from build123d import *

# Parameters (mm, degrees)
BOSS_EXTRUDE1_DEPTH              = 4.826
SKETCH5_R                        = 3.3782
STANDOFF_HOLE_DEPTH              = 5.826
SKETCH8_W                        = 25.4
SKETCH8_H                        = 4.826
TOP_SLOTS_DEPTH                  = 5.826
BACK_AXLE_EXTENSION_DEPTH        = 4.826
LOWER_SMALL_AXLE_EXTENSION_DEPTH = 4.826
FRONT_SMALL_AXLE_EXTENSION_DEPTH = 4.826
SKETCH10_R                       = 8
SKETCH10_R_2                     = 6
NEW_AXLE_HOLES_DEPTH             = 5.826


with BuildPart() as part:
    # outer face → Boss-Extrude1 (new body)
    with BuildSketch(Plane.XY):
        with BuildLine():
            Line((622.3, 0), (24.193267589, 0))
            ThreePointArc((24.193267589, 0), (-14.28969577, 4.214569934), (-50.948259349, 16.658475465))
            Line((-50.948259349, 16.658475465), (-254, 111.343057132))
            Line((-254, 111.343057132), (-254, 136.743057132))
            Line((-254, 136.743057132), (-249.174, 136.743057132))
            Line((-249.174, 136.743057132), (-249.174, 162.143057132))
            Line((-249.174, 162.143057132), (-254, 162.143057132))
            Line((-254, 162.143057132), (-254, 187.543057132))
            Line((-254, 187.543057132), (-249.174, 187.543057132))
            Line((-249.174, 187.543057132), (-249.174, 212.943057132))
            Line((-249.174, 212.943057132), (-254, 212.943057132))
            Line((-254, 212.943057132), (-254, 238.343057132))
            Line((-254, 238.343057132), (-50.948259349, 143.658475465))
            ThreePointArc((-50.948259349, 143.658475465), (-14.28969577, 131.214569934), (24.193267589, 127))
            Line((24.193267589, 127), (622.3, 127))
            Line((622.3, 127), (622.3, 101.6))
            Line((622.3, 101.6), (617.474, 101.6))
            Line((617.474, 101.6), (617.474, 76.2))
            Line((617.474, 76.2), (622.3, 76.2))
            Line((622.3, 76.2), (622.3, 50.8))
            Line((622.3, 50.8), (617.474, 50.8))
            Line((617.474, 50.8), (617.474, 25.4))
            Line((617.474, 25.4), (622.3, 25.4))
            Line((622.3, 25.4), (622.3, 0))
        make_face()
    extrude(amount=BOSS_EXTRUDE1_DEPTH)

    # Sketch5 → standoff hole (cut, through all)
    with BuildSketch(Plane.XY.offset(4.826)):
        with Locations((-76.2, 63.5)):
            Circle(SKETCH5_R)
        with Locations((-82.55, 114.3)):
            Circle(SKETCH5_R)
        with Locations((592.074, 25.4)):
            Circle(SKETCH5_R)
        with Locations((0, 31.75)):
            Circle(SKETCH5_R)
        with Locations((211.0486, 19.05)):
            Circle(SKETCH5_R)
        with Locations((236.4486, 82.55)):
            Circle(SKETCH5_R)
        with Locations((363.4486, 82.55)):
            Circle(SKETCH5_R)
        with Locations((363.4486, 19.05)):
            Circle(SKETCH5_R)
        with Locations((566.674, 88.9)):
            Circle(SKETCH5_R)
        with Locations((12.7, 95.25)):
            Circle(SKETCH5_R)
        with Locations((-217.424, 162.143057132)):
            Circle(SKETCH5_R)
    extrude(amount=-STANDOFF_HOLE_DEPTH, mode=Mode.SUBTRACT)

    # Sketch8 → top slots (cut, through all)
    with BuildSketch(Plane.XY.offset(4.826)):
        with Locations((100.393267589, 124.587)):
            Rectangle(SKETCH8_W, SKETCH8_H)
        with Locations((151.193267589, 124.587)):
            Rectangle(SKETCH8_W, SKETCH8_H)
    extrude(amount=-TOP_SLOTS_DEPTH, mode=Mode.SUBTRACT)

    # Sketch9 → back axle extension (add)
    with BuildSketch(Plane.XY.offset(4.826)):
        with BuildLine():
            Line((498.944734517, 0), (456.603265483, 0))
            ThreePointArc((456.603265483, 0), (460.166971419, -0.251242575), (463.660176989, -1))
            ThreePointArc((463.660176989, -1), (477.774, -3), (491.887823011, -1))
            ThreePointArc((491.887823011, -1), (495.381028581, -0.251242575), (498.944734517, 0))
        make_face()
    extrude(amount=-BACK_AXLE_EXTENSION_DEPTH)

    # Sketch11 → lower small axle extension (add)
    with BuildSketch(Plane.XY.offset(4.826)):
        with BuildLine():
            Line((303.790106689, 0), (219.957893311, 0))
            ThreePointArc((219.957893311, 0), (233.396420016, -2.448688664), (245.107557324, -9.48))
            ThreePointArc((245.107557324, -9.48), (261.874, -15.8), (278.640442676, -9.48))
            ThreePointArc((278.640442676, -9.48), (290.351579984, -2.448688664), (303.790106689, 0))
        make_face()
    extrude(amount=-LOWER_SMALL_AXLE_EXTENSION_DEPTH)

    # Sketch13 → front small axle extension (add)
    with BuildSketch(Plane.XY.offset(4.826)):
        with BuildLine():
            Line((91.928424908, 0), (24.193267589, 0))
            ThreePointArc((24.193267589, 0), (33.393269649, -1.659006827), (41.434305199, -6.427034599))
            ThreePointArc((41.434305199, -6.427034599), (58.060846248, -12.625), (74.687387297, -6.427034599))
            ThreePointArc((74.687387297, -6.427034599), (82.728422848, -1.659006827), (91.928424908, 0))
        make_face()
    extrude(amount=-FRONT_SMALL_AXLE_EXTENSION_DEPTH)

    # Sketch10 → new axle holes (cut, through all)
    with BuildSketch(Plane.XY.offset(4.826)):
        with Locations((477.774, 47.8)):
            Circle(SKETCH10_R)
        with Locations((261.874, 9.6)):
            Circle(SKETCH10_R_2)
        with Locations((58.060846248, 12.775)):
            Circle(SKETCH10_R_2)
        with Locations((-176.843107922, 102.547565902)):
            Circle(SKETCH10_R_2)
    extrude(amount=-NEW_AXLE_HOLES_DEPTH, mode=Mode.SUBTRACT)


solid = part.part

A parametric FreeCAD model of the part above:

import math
import FreeCAD as App
import Part
import Sketcher
from FreeCAD import Vector
Q = App.Units.Quantity

doc = App.newDocument("Part")
body = doc.addObject("PartDesign::Body", "Body")

sketch1 = body.newObject("Sketcher::SketchObject", "Sketch")
sketch1.AttachmentSupport = (doc.getObject("XY_Plane"), [""])
sketch1.MapMode = "FlatFace"
sketch1.addGeometry(Part.LineSegment(Vector(24.2, 0, 0), Vector(622.3, 0, 0)), False)
sketch1.addGeometry(Part.LineSegment(Vector(622.3, 0, 0), Vector(622.3, 25.4, 0)), False)
sketch1.addGeometry(Part.LineSegment(Vector(622.3, 25.4, 0), Vector(617.5, 25.4, 0)), False)
sketch1.addGeometry(Part.LineSegment(Vector(617.5, 25.4, 0), Vector(617.5, 50.8, 0)), False)
sketch1.addGeometry(Part.LineSegment(Vector(617.5, 50.8, 0), Vector(622.3, 50.8, 0)), False)
sketch1.addGeometry(Part.LineSegment(Vector(622.3, 50.8, 0), Vector(622.3, 76.2, 0)), False)
sketch1.addGeometry(Part.LineSegment(Vector(622.3, 76.2, 0), Vector(617.5, 76.2, 0)), False)
sketch1.addGeometry(Part.LineSegment(Vector(617.5, 76.2, 0), Vector(617.5, 101.6, 0)), False)
sketch1.addGeometry(Part.LineSegment(Vector(617.5, 101.6, 0), Vector(622.3, 101.6, 0)), False)
sketch1.addGeometry(Part.LineSegment(Vector(622.3, 101.6, 0), Vector(622.3, 127, 0)), False)
sketch1.addGeometry(Part.LineSegment(Vector(622.3, 127, 0), Vector(24.2, 127, 0)), False)
sketch1.addGeometry(Part.ArcOfCircle(Part.Circle(Vector(24.2, 304.8, 0), Vector(0, 0, 1), 177.8), math.radians(-115), math.radians(-90)), False)
sketch1.addGeometry(Part.LineSegment(Vector(-50.9, 143.7, 0), Vector(-254, 238.3, 0)), False)
sketch1.addGeometry(Part.LineSegment(Vector(-254, 238.3, 0), Vector(-254, 212.9, 0)), False)
sketch1.addGeometry(Part.LineSegment(Vector(-254, 212.9, 0), Vector(-249.2, 212.9, 0)), False)
sketch1.addGeometry(Part.LineSegment(Vector(-249.2, 212.9, 0), Vector(-249.2, 187.5, 0)), False)
sketch1.addGeometry(Part.LineSegment(Vector(-249.2, 187.5, 0), Vector(-254, 187.5, 0)), False)
sketch1.addGeometry(Part.LineSegment(Vector(-254, 187.5, 0), Vector(-254, 162.1, 0)), False)
sketch1.addGeometry(Part.LineSegment(Vector(-254, 162.1, 0), Vector(-249.2, 162.1, 0)), False)
sketch1.addGeometry(Part.LineSegment(Vector(-249.2, 162.1, 0), Vector(-249.2, 136.7, 0)), False)
sketch1.addGeometry(Part.LineSegment(Vector(-249.2, 136.7, 0), Vector(-254, 136.7, 0)), False)
sketch1.addGeometry(Part.LineSegment(Vector(-254, 136.7, 0), Vector(-254, 111.3, 0)), False)
sketch1.addGeometry(Part.LineSegment(Vector(-254, 111.3, 0), Vector(-50.9, 16.7, 0)), False)
sketch1.addGeometry(Part.ArcOfCircle(Part.Circle(Vector(24.2, 177.8, 0), Vector(0, 0, 1), 177.8), math.radians(-115), math.radians(-90)), False)
sketch1.addConstraint(Sketcher.Constraint("Coincident", 0, 2, 1, 1))
sketch1.addConstraint(Sketcher.Constraint("Coincident", 1, 2, 2, 1))
sketch1.addConstraint(Sketcher.Constraint("Coincident", 2, 2, 3, 1))
sketch1.addConstraint(Sketcher.Constraint("Coincident", 3, 2, 4, 1))
sketch1.addConstraint(Sketcher.Constraint("Coincident", 4, 2, 5, 1))
sketch1.addConstraint(Sketcher.Constraint("Coincident", 5, 2, 6, 1))
sketch1.addConstraint(Sketcher.Constraint("Coincident", 6, 2, 7, 1))
sketch1.addConstraint(Sketcher.Constraint("Coincident", 7, 2, 8, 1))
sketch1.addConstraint(Sketcher.Constraint("Coincident", 8, 2, 9, 1))
sketch1.addConstraint(Sketcher.Constraint("Coincident", 9, 2, 10, 1))
sketch1.addConstraint(Sketcher.Constraint("Tangent", 10, 2, 11, 2))
sketch1.addConstraint(Sketcher.Constraint("Tangent", 11, 1, 12, 1))
sketch1.addConstraint(Sketcher.Constraint("Coincident", 12, 2, 13, 1))
sketch1.addConstraint(Sketcher.Constraint("Coincident", 13, 2, 14, 1))
sketch1.addConstraint(Sketcher.Constraint("Coincident", 14, 2, 15, 1))
sketch1.addConstraint(Sketcher.Constraint("Coincident", 15, 2, 16, 1))
sketch1.addConstraint(Sketcher.Constraint("Coincident", 16, 2, 17, 1))
sketch1.addConstraint(Sketcher.Constraint("Coincident", 17, 2, 18, 1))
sketch1.addConstraint(Sketcher.Constraint("Coincident", 18, 2, 19, 1))
sketch1.addConstraint(Sketcher.Constraint("Coincident", 19, 2, 20, 1))
sketch1.addConstraint(Sketcher.Constraint("Coincident", 20, 2, 21, 1))
sketch1.addConstraint(Sketcher.Constraint("Coincident", 21, 2, 22, 1))
sketch1.addConstraint(Sketcher.Constraint("Tangent", 22, 2, 23, 1))
sketch1.addConstraint(Sketcher.Constraint("Tangent", 23, 2, 0, 1))
sketch1.addConstraint(Sketcher.Constraint("Horizontal", 0))
sketch1.addConstraint(Sketcher.Constraint("Vertical", 1))
sketch1.addConstraint(Sketcher.Constraint("Horizontal", 2))
sketch1.addConstraint(Sketcher.Constraint("Vertical", 3))
sketch1.addConstraint(Sketcher.Constraint("Horizontal", 4))
sketch1.addConstraint(Sketcher.Constraint("Vertical", 5))
sketch1.addConstraint(Sketcher.Constraint("Horizontal", 6))
sketch1.addConstraint(Sketcher.Constraint("Vertical", 7))
sketch1.addConstraint(Sketcher.Constraint("Horizontal", 8))
sketch1.addConstraint(Sketcher.Constraint("Vertical", 9))
sketch1.addConstraint(Sketcher.Constraint("Horizontal", 10))
sketch1.addConstraint(Sketcher.Constraint("Vertical", 13))
sketch1.addConstraint(Sketcher.Constraint("Horizontal", 14))
sketch1.addConstraint(Sketcher.Constraint("Vertical", 15))
sketch1.addConstraint(Sketcher.Constraint("Horizontal", 16))
sketch1.addConstraint(Sketcher.Constraint("Vertical", 17))
sketch1.addConstraint(Sketcher.Constraint("Horizontal", 18))
sketch1.addConstraint(Sketcher.Constraint("Vertical", 19))
sketch1.addConstraint(Sketcher.Constraint("Horizontal", 20))
sketch1.addConstraint(Sketcher.Constraint("Vertical", 21))
sketch1.addConstraint(Sketcher.Constraint("Equal", 11, 23))
sketch1.addConstraint(Sketcher.Constraint("PointOnObject", 0, 2, -1))
sketch1.addConstraint(Sketcher.Constraint("Parallel", 12, 22))
sketch1.addConstraint(Sketcher.Constraint("Vertical", 11, 3, 23, 3))
sketch1.addConstraint(Sketcher.Constraint("Vertical", 1, 2, 4, 2))
sketch1.addConstraint(Sketcher.Constraint("Vertical", 3, 2, 6, 2))
sketch1.addConstraint(Sketcher.Constraint("Vertical", 5, 2, 8, 2))
sketch1.addConstraint(Sketcher.Constraint("Vertical", 13, 2, 16, 2))
sketch1.addConstraint(Sketcher.Constraint("Vertical", 15, 2, 18, 2))
sketch1.addConstraint(Sketcher.Constraint("Vertical", 17, 2, 20, 2))
sketch1.addConstraint(Sketcher.Constraint("Equal", 8, 14))
sketch1.addConstraint(Sketcher.Constraint("Equal", 1, 3))
sketch1.addConstraint(Sketcher.Constraint("Equal", 3, 5))
sketch1.addConstraint(Sketcher.Constraint("Equal", 5, 7))
sketch1.addConstraint(Sketcher.Constraint("Equal", 7, 9))
sketch1.addConstraint(Sketcher.Constraint("Equal", 9, 13))
sketch1.addConstraint(Sketcher.Constraint("Equal", 13, 15))
sketch1.addConstraint(Sketcher.Constraint("Equal", 15, 17))
sketch1.addConstraint(Sketcher.Constraint("Equal", 17, 19))
sketch1.addConstraint(Sketcher.Constraint("Radius", 11, Q("7 in")))
sketch1.addConstraint(Sketcher.Constraint("DistanceY", 1, 1, 1, 2, Q("1 in")))
sketch1.addConstraint(Sketcher.Constraint("DistanceX", 12, 2, -1, 1, Q("10 in")))
sketch1.addConstraint(Sketcher.Constraint("Angle", 12, Q("155 deg")))
sketch1.addConstraint(Sketcher.Constraint("DistanceX", 2, 2, 2, 1, Q("0.19 in")))
sketch1.addConstraint(Sketcher.Constraint("DistanceX", -1, 1, 0, 2, Q("24.5 in")))
sketch1.addConstraint(Sketcher.Constraint("DistanceX", 0, 1, 0, 2, 598.106732))
pad1 = body.newObject("PartDesign::Pad", "Pad")
pad1.Profile = sketch1
pad1.Length = Q("0.19 in")

sketch2 = body.newObject("Sketcher::SketchObject", "Sketch001")
sketch2.AttachmentSupport = (doc.getObject("XY_Plane"), [""])
sketch2.MapMode = "FlatFace"
sketch2.AttachmentOffset = App.Placement(Vector(0, 0, 0.19 * 25.4), App.Rotation())
sketch2.addGeometry(Part.Circle(Vector(-76.2, 63.5, 0), Vector(0, 0, 1), 3.4), False)
sketch2.addGeometry(Part.Circle(Vector(-82.5, 114.3, 0), Vector(0, 0, 1), 3.4), False)
sketch2.addGeometry(Part.Circle(Vector(592.1, 25.4, 0), Vector(0, 0, 1), 3.4), False)
sketch2.addGeometry(Part.Circle(Vector(0, 31.8, 0), Vector(0, 0, 1), 3.4), False)
sketch2.addGeometry(Part.Circle(Vector(211, 19.1, 0), Vector(0, 0, 1), 3.4), False)
sketch2.addGeometry(Part.Circle(Vector(236.4, 82.5, 0), Vector(0, 0, 1), 3.4), False)
sketch2.addGeometry(Part.Circle(Vector(363.4, 82.5, 0), Vector(0, 0, 1), 3.4), False)
sketch2.addGeometry(Part.Circle(Vector(363.4, 19.1, 0), Vector(0, 0, 1), 3.4), False)
sketch2.addGeometry(Part.Circle(Vector(566.7, 88.9, 0), Vector(0, 0, 1), 3.4), False)
sketch2.addGeometry(Part.Circle(Vector(12.7, 95.2, 0), Vector(0, 0, 1), 3.4), False)
sketch2.addGeometry(Part.Circle(Vector(-217.4, 162.1, 0), Vector(0, 0, 1), 3.4), False)
sketch2.addConstraint(Sketcher.Constraint("Equal", 0, 1))
sketch2.addConstraint(Sketcher.Constraint("Equal", 1, 2))
sketch2.addConstraint(Sketcher.Constraint("Equal", 2, 3))
sketch2.addConstraint(Sketcher.Constraint("Equal", 3, 4))
sketch2.addConstraint(Sketcher.Constraint("Equal", 4, 5))
sketch2.addConstraint(Sketcher.Constraint("Equal", 5, 6))
sketch2.addConstraint(Sketcher.Constraint("Equal", 6, 7))
sketch2.addConstraint(Sketcher.Constraint("Equal", 7, 8))
sketch2.addConstraint(Sketcher.Constraint("Equal", 8, 9))
sketch2.addConstraint(Sketcher.Constraint("Equal", 9, 10))
sketch2.addConstraint(Sketcher.Constraint("PointOnObject", 3, 3, -2))
sketch2.addConstraint(Sketcher.Constraint("Horizontal", 5, 3, 6, 3))
sketch2.addConstraint(Sketcher.Constraint("Horizontal", 4, 3, 7, 3))
sketch2.addConstraint(Sketcher.Constraint("Vertical", 6, 3, 7, 3))
sketch2.addConstraint(Sketcher.Constraint("Diameter", 0, Q("0.266 in")))
sketch2.addConstraint(Sketcher.Constraint("DistanceX", 0, 3, -1, 1, Q("3 in")))
sketch2.addConstraint(Sketcher.Constraint("DistanceY", -1, 1, 2, 3, Q("1 in")))
sketch2.addConstraint(Sketcher.Constraint("DistanceY", 0, 3, 1, 3, Q("2 in")))
sketch2.addConstraint(Sketcher.Constraint("DistanceX", 4, 3, 5, 3, Q("1 in")))
sketch2.addConstraint(Sketcher.Constraint("DistanceY", 3, 3, 5, 3, Q("2 in")))
sketch2.addConstraint(Sketcher.Constraint("DistanceX", 5, 3, 6, 3, Q("5 in")))
sketch2.addConstraint(Sketcher.Constraint("DistanceX", 8, 3, 2, 3, Q("1 in")))
sketch2.addConstraint(Sketcher.Constraint("DistanceY", 4, 3, 9, 3, Q("3 in")))
sketch2.addConstraint(Sketcher.Constraint("DistanceY", -1, 1, 0, 3, Q("2.5 in")))
sketch2.addConstraint(Sketcher.Constraint("DistanceY", -1, 1, 8, 3, Q("3.5 in")))
sketch2.addConstraint(Sketcher.Constraint("DistanceX", -1, 1, 9, 3, Q("0.5 in")))
sketch2.addConstraint(Sketcher.Constraint("DistanceY", 4, 3, 3, 3, Q("0.5 in")))
sketch2.addConstraint(Sketcher.Constraint("DistanceX", 1, 3, -1, 1, Q("3.25 in")))
sketch2.addConstraint(Sketcher.Constraint("DistanceX", -1, 1, 2, 3, Q("23.31 in")))
sketch2.addConstraint(Sketcher.Constraint("DistanceY", -1, 1, 3, 3, Q("1.25 in")))
sketch2.addConstraint(Sketcher.Constraint("DistanceX", 10, 3, -1, 1, Q("8.56 in")))
sketch2.addConstraint(Sketcher.Constraint("DistanceX", -1, 1, 4, 3, Q("8.309 in")))
sketch2.addConstraint(Sketcher.Constraint("DistanceY", -1, 1, 10, 3, 162.143057))
pocket1 = body.newObject("PartDesign::Pocket", "Pocket")
pocket1.Profile = sketch2
pocket1.Type = "ThroughAll"

sketch3 = body.newObject("Sketcher::SketchObject", "Sketch002")
sketch3.AttachmentSupport = (doc.getObject("XY_Plane"), [""])
sketch3.MapMode = "FlatFace"
sketch3.AttachmentOffset = App.Placement(Vector(0, 0, 0.19 * 25.4), App.Rotation())
sketch3.addGeometry(Part.LineSegment(Vector(87.7, 127, 0), Vector(87.7, 122.2, 0)), False)
sketch3.addGeometry(Part.LineSegment(Vector(87.7, 122.2, 0), Vector(113.1, 122.2, 0)), False)
sketch3.addGeometry(Part.LineSegment(Vector(113.1, 122.2, 0), Vector(113.1, 127, 0)), False)
sketch3.addGeometry(Part.LineSegment(Vector(113.1, 127, 0), Vector(87.7, 127, 0)), False)
sketch3.addGeometry(Part.LineSegment(Vector(138.5, 127, 0), Vector(138.5, 122.2, 0)), False)
sketch3.addGeometry(Part.LineSegment(Vector(138.5, 122.2, 0), Vector(163.9, 122.2, 0)), False)
sketch3.addGeometry(Part.LineSegment(Vector(163.9, 122.2, 0), Vector(163.9, 127, 0)), False)
sketch3.addGeometry(Part.LineSegment(Vector(163.9, 127, 0), Vector(138.5, 127, 0)), False)
sketch3.addConstraint(Sketcher.Constraint("Coincident", 0, 2, 1, 1))
sketch3.addConstraint(Sketcher.Constraint("Coincident", 1, 2, 2, 1))
sketch3.addConstraint(Sketcher.Constraint("Coincident", 2, 2, 3, 1))
sketch3.addConstraint(Sketcher.Constraint("Coincident", 3, 2, 0, 1))
sketch3.addConstraint(Sketcher.Constraint("Coincident", 4, 2, 5, 1))
sketch3.addConstraint(Sketcher.Constraint("Coincident", 5, 2, 6, 1))
sketch3.addConstraint(Sketcher.Constraint("Coincident", 6, 2, 7, 1))
sketch3.addConstraint(Sketcher.Constraint("Coincident", 7, 2, 4, 1))
sketch3.addConstraint(Sketcher.Constraint("Vertical", 0))
sketch3.addConstraint(Sketcher.Constraint("Horizontal", 1))
sketch3.addConstraint(Sketcher.Constraint("Vertical", 2))
sketch3.addConstraint(Sketcher.Constraint("Horizontal", 3))
sketch3.addConstraint(Sketcher.Constraint("Vertical", 4))
sketch3.addConstraint(Sketcher.Constraint("Horizontal", 5))
sketch3.addConstraint(Sketcher.Constraint("Vertical", 6))
sketch3.addConstraint(Sketcher.Constraint("Horizontal", 7))
sketch3.addConstraint(Sketcher.Constraint("Horizontal", 1, 2, 4, 2))
sketch3.addConstraint(Sketcher.Constraint("Horizontal", 3, 2, 6, 2))
sketch3.addConstraint(Sketcher.Constraint("Equal", 3, 5))
sketch3.addConstraint(Sketcher.Constraint("DistanceX", 1, 1, 1, 2, Q("1 in")))
sketch3.addConstraint(Sketcher.Constraint("DistanceY", -1, 1, 2, 2, Q("5 in")))
sketch3.addConstraint(Sketcher.Constraint("DistanceX", 1, 2, 4, 2, Q("1 in")))
sketch3.addConstraint(Sketcher.Constraint("DistanceY", 0, 2, 0, 1, Q("0.19 in")))
sketch3.addConstraint(Sketcher.Constraint("DistanceX", -1, 1, 0, 2, 87.693268))
pocket2 = body.newObject("PartDesign::Pocket", "Pocket001")
pocket2.Profile = sketch3
pocket2.Type = "ThroughAll"

sketch4 = body.newObject("Sketcher::SketchObject", "Sketch003")
sketch4.AttachmentSupport = (doc.getObject("XY_Plane"), [""])
sketch4.MapMode = "FlatFace"
sketch4.AttachmentOffset = App.Placement(Vector(0, 0, 0.19 * 25.4), App.Rotation())
sketch4.addGeometry(Part.LineSegment(Vector(499, 0, 0), Vector(457, 0, 0)), False)
sketch4.addGeometry(Part.ArcOfCircle(Part.Circle(Vector(457, -25, 0), Vector(0, 0, 1), 25), math.radians(73.87), math.radians(90)), False)
sketch4.addGeometry(Part.ArcOfCircle(Part.Circle(Vector(478, 48, 0), Vector(0, 0, 1), 51), math.radians(-106), math.radians(-74)), False)
sketch4.addGeometry(Part.ArcOfCircle(Part.Circle(Vector(499, -25, 0), Vector(0, 0, 1), 25), math.radians(90), math.radians(106.13)), False)
sketch4.addConstraint(Sketcher.Constraint("Tangent", 0, 2, 1, 2))
sketch4.addConstraint(Sketcher.Constraint("Tangent", 1, 1, 2, 1))
sketch4.addConstraint(Sketcher.Constraint("Tangent", 2, 2, 3, 2))
sketch4.addConstraint(Sketcher.Constraint("Tangent", 3, 1, 0, 1))
sketch4.addConstraint(Sketcher.Constraint("Horizontal", 0))
sketch4.addConstraint(Sketcher.Constraint("Equal", 1, 3))
sketch4.addConstraint(Sketcher.Constraint("PointOnObject", 0, 2, -1))
sketch4.addConstraint(Sketcher.Constraint("Radius", 1, Q("1 in")))
sketch4.addConstraint(Sketcher.Constraint("Radius", 2, Q("2 in")))
sketch4.addConstraint(Sketcher.Constraint("DistanceX", -1, 1, 2, 3, Q("18.81 in")))
sketch4.addConstraint(Sketcher.Constraint("DistanceX", 0, 2, 0, 1, 42.341469))
pad2 = body.newObject("PartDesign::Pad", "Pad001")
pad2.Profile = sketch4
pad2.Length = Q("0.19 in")
pad2.Reversed = True

sketch5 = body.newObject("Sketcher::SketchObject", "Sketch004")
sketch5.AttachmentSupport = (doc.getObject("XY_Plane"), [""])
sketch5.MapMode = "FlatFace"
sketch5.AttachmentOffset = App.Placement(Vector(0, 0, 0.19 * 25.4), App.Rotation())
sketch5.addGeometry(Part.LineSegment(Vector(304, 0, 0), Vector(220, 0, 0)), False)
sketch5.addGeometry(Part.ArcOfCircle(Part.Circle(Vector(220, -38, 0), Vector(0, 0, 1), 38), math.radians(49), math.radians(90)), False)
sketch5.addGeometry(Part.ArcOfCircle(Part.Circle(Vector(262, 10, 0), Vector(0, 0, 1), 25), math.radians(-131), math.radians(-49)), False)
sketch5.addGeometry(Part.ArcOfCircle(Part.Circle(Vector(304, -38, 0), Vector(0, 0, 1), 38), math.radians(90), math.radians(131)), False)
sketch5.addConstraint(Sketcher.Constraint("Tangent", 0, 2, 1, 2))
sketch5.addConstraint(Sketcher.Constraint("Tangent", 1, 1, 2, 1))
sketch5.addConstraint(Sketcher.Constraint("Tangent", 2, 2, 3, 2))
sketch5.addConstraint(Sketcher.Constraint("Tangent", 3, 1, 0, 1))
sketch5.addConstraint(Sketcher.Constraint("Horizontal", 0))
sketch5.addConstraint(Sketcher.Constraint("Equal", 1, 3))
sketch5.addConstraint(Sketcher.Constraint("PointOnObject", 0, 2, -1))
sketch5.addConstraint(Sketcher.Constraint("Radius", 2, Q("1 in")))
sketch5.addConstraint(Sketcher.Constraint("Radius", 1, Q("1.5 in")))
sketch5.addConstraint(Sketcher.Constraint("DistanceX", -1, 1, 2, 3, Q("10.31 in")))
sketch5.addConstraint(Sketcher.Constraint("DistanceY", -1, 1, 2, 3, 9.6))
pad3 = body.newObject("PartDesign::Pad", "Pad002")
pad3.Profile = sketch5
pad3.Length = Q("0.19 in")
pad3.Reversed = True

sketch6 = body.newObject("Sketcher::SketchObject", "Sketch005")
sketch6.AttachmentSupport = (doc.getObject("XY_Plane"), [""])
sketch6.MapMode = "FlatFace"
sketch6.AttachmentOffset = App.Placement(Vector(0, 0, 0.19 * 25.4), App.Rotation())
sketch6.addGeometry(Part.LineSegment(Vector(92, 0, 0), Vector(24, 0, 0)), False)
sketch6.addGeometry(Part.ArcOfCircle(Part.Circle(Vector(24, -26, 0), Vector(0, 0, 1), 26), math.radians(49), math.radians(90)), False)
sketch6.addGeometry(Part.ArcOfCircle(Part.Circle(Vector(58, 13, 0), Vector(0, 0, 1), 25), math.radians(-131), math.radians(-49)), False)
sketch6.addGeometry(Part.ArcOfCircle(Part.Circle(Vector(92, -26, 0), Vector(0, 0, 1), 26), math.radians(90), math.radians(131)), False)
sketch6.addConstraint(Sketcher.Constraint("Tangent", 0, 2, 1, 2))
sketch6.addConstraint(Sketcher.Constraint("Tangent", 1, 1, 2, 1))
sketch6.addConstraint(Sketcher.Constraint("Tangent", 2, 2, 3, 2))
sketch6.addConstraint(Sketcher.Constraint("Tangent", 3, 1, 0, 1))
sketch6.addConstraint(Sketcher.Constraint("Horizontal", 0))
sketch6.addConstraint(Sketcher.Constraint("Equal", 1, 3))
sketch6.addConstraint(Sketcher.Constraint("PointOnObject", 0, 2, -1))
sketch6.addConstraint(Sketcher.Constraint("Radius", 2, Q("1 in")))
sketch6.addConstraint(Sketcher.Constraint("Radius", 1, 26.338753))
sketch6.addConstraint(Sketcher.Constraint("DistanceY", -1, 1, 2, 3, 12.775))
sketch6.addConstraint(Sketcher.Constraint("DistanceX", -1, 1, 1, 3, 24.193268))
pad4 = body.newObject("PartDesign::Pad", "Pad003")
pad4.Profile = sketch6
pad4.Length = Q("0.19 in")
pad4.Reversed = True

sketch7 = body.newObject("Sketcher::SketchObject", "Sketch006")
sketch7.AttachmentSupport = (doc.getObject("XY_Plane"), [""])
sketch7.MapMode = "FlatFace"
sketch7.AttachmentOffset = App.Placement(Vector(0, 0, 0.19 * 25.4), App.Rotation())
sketch7.addGeometry(Part.Circle(Vector(478, 48, 0), Vector(0, 0, 1), 8), False)
sketch7.addGeometry(Part.Circle(Vector(262, 10, 0), Vector(0, 0, 1), 6), False)
sketch7.addGeometry(Part.Circle(Vector(58, 13, 0), Vector(0, 0, 1), 6), False)
sketch7.addGeometry(Part.Circle(Vector(-177, 103, 0), Vector(0, 0, 1), 6), False)
sketch7.addConstraint(Sketcher.Constraint("Equal", 1, 2))
sketch7.addConstraint(Sketcher.Constraint("Equal", 2, 3))
sketch7.addConstraint(Sketcher.Constraint("DistanceX", 1, 3, 0, 3, Q("8.5 in")))
sketch7.addConstraint(Sketcher.Constraint("Diameter", 0, 16.0))
sketch7.addConstraint(Sketcher.Constraint("Diameter", 1, 12.0))
sketch7.addConstraint(Sketcher.Constraint("DistanceX", -1, 1, 0, 3, Q("18.81 in")))
sketch7.addConstraint(Sketcher.Constraint("DistanceY", 1, 3, 2, 3, Q("0.125 in")))
sketch7.addConstraint(Sketcher.Constraint("DistanceY", -1, 1, 0, 3, 47.8))
sketch7.addConstraint(Sketcher.Constraint("DistanceY", -1, 1, 1, 3, 9.6))
sketch7.addConstraint(Sketcher.Constraint("DistanceX", -1, 1, 2, 3, 58.060846))
sketch7.addConstraint(Sketcher.Constraint("DistanceX", 3, 3, -1, 1, 176.843108))
sketch7.addConstraint(Sketcher.Constraint("DistanceY", -1, 1, 3, 3, 102.547566))
pocket3 = body.newObject("PartDesign::Pocket", "Pocket002")
pocket3.Profile = sketch7
pocket3.Type = "ThroughAll"

doc.recompute()
